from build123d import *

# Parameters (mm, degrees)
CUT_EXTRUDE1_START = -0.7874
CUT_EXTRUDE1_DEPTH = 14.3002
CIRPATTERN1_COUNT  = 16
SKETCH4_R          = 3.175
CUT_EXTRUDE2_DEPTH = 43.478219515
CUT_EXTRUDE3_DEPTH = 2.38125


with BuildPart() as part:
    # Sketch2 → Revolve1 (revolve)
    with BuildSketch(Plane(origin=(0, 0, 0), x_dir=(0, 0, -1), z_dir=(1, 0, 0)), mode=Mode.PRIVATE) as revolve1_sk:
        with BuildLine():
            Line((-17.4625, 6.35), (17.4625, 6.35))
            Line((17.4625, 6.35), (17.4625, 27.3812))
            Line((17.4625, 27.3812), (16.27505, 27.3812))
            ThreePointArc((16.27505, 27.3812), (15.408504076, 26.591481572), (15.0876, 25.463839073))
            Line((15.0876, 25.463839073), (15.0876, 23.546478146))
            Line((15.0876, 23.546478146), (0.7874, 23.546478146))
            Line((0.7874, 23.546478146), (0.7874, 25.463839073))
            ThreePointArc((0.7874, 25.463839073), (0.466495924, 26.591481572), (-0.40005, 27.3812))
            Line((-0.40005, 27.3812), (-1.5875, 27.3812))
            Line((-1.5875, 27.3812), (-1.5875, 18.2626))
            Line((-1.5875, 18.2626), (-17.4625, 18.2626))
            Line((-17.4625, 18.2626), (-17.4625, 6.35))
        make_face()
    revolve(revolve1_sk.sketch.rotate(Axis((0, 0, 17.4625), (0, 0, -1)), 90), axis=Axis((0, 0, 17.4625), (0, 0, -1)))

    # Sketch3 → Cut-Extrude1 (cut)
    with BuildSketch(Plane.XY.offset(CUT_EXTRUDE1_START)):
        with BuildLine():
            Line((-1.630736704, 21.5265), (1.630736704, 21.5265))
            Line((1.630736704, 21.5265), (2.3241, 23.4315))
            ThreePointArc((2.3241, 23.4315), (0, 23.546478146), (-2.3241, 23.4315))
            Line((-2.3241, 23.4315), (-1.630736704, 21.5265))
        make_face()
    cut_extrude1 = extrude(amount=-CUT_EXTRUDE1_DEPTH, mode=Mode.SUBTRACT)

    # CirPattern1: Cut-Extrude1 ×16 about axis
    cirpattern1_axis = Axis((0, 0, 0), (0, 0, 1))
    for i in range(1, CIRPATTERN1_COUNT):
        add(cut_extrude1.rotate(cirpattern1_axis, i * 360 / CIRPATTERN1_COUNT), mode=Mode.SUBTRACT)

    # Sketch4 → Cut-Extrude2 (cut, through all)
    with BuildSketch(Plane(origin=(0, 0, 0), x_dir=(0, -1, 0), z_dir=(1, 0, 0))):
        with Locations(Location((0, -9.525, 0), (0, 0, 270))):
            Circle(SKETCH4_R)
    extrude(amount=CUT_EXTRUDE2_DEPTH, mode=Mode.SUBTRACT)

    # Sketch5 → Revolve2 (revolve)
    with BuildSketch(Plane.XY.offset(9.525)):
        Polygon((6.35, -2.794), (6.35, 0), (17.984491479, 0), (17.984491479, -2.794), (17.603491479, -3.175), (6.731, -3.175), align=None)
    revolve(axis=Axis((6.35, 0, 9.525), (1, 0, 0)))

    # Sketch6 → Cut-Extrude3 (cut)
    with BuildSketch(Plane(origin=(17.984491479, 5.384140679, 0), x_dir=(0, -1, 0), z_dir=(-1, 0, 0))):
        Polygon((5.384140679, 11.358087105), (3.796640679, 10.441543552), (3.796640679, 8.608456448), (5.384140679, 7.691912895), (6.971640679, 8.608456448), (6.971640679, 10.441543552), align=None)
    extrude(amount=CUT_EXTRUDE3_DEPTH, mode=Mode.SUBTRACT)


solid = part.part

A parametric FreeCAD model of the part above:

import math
import FreeCAD as App
import Part
import Sketcher
Q = App.Units.Quantity

doc = App.newDocument("Part")
body = doc.addObject("PartDesign::Body", "Body")

# Sketch on YZ plane
sketch1 = body.newObject("Sketcher::SketchObject", "Sketch")
sketch1.AttachmentSupport = (doc.getObject("YZ_Plane"), [""])
sketch1.MapMode = "FlatFace"
sketch1.addGeometry(Part.LineSegment(App.Vector(6.3, 17.5, 0), App.Vector(6.3, -17.5, 0)), False)
sketch1.addGeometry(Part.LineSegment(App.Vector(6.3, -17.5, 0), App.Vector(27.4, -17.5, 0)), False)
sketch1.addGeometry(Part.LineSegment(App.Vector(27.4, -17.5, 0), App.Vector(27.4, -16.3, 0)), False)
sketch1.addGeometry(Part.ArcOfCircle(Part.Circle(App.Vector(25.5, -17.2, 0), App.Vector(0, 0, 1), 2.1), math.radians(26), math.radians(90)), False)
sketch1.addGeometry(Part.LineSegment(App.Vector(25.5, -15.1, 0), App.Vector(23.5, -15.1, 0)), False)
sketch1.addGeometry(Part.LineSegment(App.Vector(23.5, -15.1, 0), App.Vector(23.5, -0.8, 0)), False)
sketch1.addGeometry(Part.LineSegment(App.Vector(23.5, -0.8, 0), App.Vector(25.5, -0.8, 0)), False)
sketch1.addGeometry(Part.ArcOfCircle(Part.Circle(App.Vector(25.5, 1.4, 0), App.Vector(0, 0, 1), 2.1), math.radians(-90), math.radians(-26)), False)
sketch1.addGeometry(Part.LineSegment(App.Vector(27.4, 0.4, 0), App.Vector(27.4, 1.6, 0)), False)
sketch1.addGeometry(Part.LineSegment(App.Vector(27.4, 1.6, 0), App.Vector(18.3, 1.6, 0)), False)
sketch1.addGeometry(Part.LineSegment(App.Vector(18.3, 1.6, 0), App.Vector(18.3, 17.5, 0)), False)
sketch1.addGeometry(Part.LineSegment(App.Vector(18.3, 17.5, 0), App.Vector(6.3, 17.5, 0)), False)
sketch1.addConstraint(Sketcher.Constraint("Coincident", 0, 2, 1, 1))
sketch1.addConstraint(Sketcher.Constraint("Coincident", 1, 2, 2, 1))
sketch1.addConstraint(Sketcher.Constraint("Coincident", 2, 2, 3, 1))
sketch1.addConstraint(Sketcher.Constraint("Tangent", 3, 2, 4, 1))
sketch1.addConstraint(Sketcher.Constraint("Coincident", 4, 2, 5, 1))
sketch1.addConstraint(Sketcher.Constraint("Coincident", 5, 2, 6, 1))
sketch1.addConstraint(Sketcher.Constraint("Tangent", 6, 2, 7, 1))
sketch1.addConstraint(Sketcher.Constraint("Coincident", 7, 2, 8, 1))
sketch1.addConstraint(Sketcher.Constraint("Coincident", 8, 2, 9, 1))
sketch1.addConstraint(Sketcher.Constraint("Coincident", 9, 2, 10, 1))
sketch1.addConstraint(Sketcher.Constraint("Coincident", 10, 2, 11, 1))
sketch1.addConstraint(Sketcher.Constraint("Coincident", 11, 2, 0, 1))
sketch1.addConstraint(Sketcher.Constraint("Vertical", 0))
sketch1.addConstraint(Sketcher.Constraint("Horizontal", 1))
sketch1.addConstraint(Sketcher.Constraint("Vertical", 2))
sketch1.addConstraint(Sketcher.Constraint("Horizontal", 4))
sketch1.addConstraint(Sketcher.Constraint("Vertical", 5))
sketch1.addConstraint(Sketcher.Constraint("Horizontal", 6))
sketch1.addConstraint(Sketcher.Constraint("Vertical", 8))
sketch1.addConstraint(Sketcher.Constraint("Horizontal", 9))
sketch1.addConstraint(Sketcher.Constraint("Vertical", 10))
sketch1.addConstraint(Sketcher.Constraint("Horizontal", 11))
sketch1.addConstraint(Sketcher.Constraint("Equal", 3, 7))
sketch1.addConstraint(Sketcher.Constraint("Vertical", 3, 3, 7, 3))
sketch1.addConstraint(Sketcher.Constraint("Vertical", 2, 2, 7, 2))
sketch1.addConstraint(Sketcher.Constraint("Equal", 2, 8))
sketch1.addConstraint(Sketcher.Constraint("DistanceX", 1, 1, 1, 2, Q("0.828 in")))
sketch1.addConstraint(Sketcher.Constraint("DistanceX", 9, 2, 9, 1, Q("0.359 in")))
sketch1.addConstraint(Sketcher.Constraint("DistanceY", 0, 2, 0, 1, Q("1.375 in")))
sketch1.addConstraint(Sketcher.Constraint("DistanceY", 5, 1, 5, 2, Q("0.563 in")))
sketch1.addConstraint(Sketcher.Constraint("DistanceY", 10, 1, 10, 2, Q("0.625 in")))
sketch1.addConstraint(Sketcher.Constraint("DistanceX", -1, 1, 0, 2, Q("0.25 in")))
sketch1.addConstraint(Sketcher.Constraint("DistanceY", 0, 2, -1, 1, Q("0.6875 in")))
sketch1.addConstraint(Sketcher.Constraint("Radius", 3, 2.141695))
sketch1.addConstraint(Sketcher.Constraint("DistanceX", 4, 2, 4, 1, 1.917361))
sketch1.addConstraint(Sketcher.Constraint("DistanceY", 2, 1, 2, 2, 1.18745))
revolution = body.newObject("PartDesign::Revolution", "Revolution")
revolution.Profile = sketch1
revolution.ReferenceAxis = (sketch1, ["V_Axis"])
revolution.Angle = 360

# Sketch on XY plane
sketch2 = body.newObject("Sketcher::SketchObject", "Sketch001")
sketch2.AttachmentSupport = (doc.getObject("XY_Plane"), [""])
sketch2.MapMode = "FlatFace"
sketch2.AttachmentOffset = App.Placement(App.Vector(0, 0, -0.031 * 25.4), App.Rotation())
sketch2.addGeometry(Part.LineSegment(App.Vector(-1.6, 21.5, 0), App.Vector(1.6, 21.5, 0)), False)
sketch2.addGeometry(Part.LineSegment(App.Vector(1.6, 21.5, 0), App.Vector(2.3, 23.4, 0)), False)
sketch2.addGeometry(Part.ArcOfCircle(Part.Circle(App.Vector(0, 0, 0), App.Vector(0, 0, 1), 23.5), math.radians(84.34), math.radians(95.66)), False)
sketch2.addGeometry(Part.LineSegment(App.Vector(-2.3, 23.4, 0), App.Vector(-1.6, 21.5, 0)), False)
sketch2.addConstraint(Sketcher.Constraint("Coincident", 0, 2, 1, 1))
sketch2.addConstraint(Sketcher.Constraint("Coincident", 1, 2, 2, 1))
sketch2.addConstraint(Sketcher.Constraint("Coincident", 2, 2, 3, 1))
sketch2.addConstraint(Sketcher.Constraint("Coincident", 3, 2, 0, 1))
sketch2.addConstraint(Sketcher.Constraint("Horizontal", 0))
sketch2.addConstraint(Sketcher.Constraint("Coincident", 2, 3, -1, 1))
sketch2.addConstraint(Sketcher.Constraint("Horizontal", 1, 2, 2, 2))
sketch2.addConstraint(Sketcher.Constraint("Equal", 1, 3))
sketch2.addConstraint(Sketcher.Constraint("Angle", 1, Q("70 deg")))
sketch2.addConstraint(Sketcher.Constraint("Radius", 2, 23.546478))
sketch2.addConstraint(Sketcher.Constraint("DistanceY", 0, 2, 1, 2, Q("0.075 in")))
sketch2.addConstraint(Sketcher.Constraint("DistanceX", 2, 2, 1, 2, Q("0.183 in")))
pocket1 = body.newObject("PartDesign::Pocket", "Pocket")
pocket1.Profile = sketch2
pocket1.Length = Q("0.563 in")
doc.recompute()

polarpattern = body.newObject("PartDesign::PolarPattern", "PolarPattern")
polarpattern.Originals = [pocket1]
polarpattern.Axis = (doc.getObject("Z_Axis"), [""])
polarpattern.Angle = 360
polarpattern.Occurrences = 16
body.Tip = polarpattern

# Sketch on YZ plane
sketch3 = body.newObject("Sketcher::SketchObject", "Sketch002")
sketch3.AttachmentSupport = (doc.getObject("YZ_Plane"), [""])
sketch3.MapMode = "FlatFace"
sketch3.addGeometry(Part.Circle(App.Vector(0, 9.5, 0), App.Vector(0, 0, 1), 3.2), False)
sketch3.addConstraint(Sketcher.Constraint("PointOnObject", 0, 3, -2))
sketch3.addConstraint(Sketcher.Constraint("Diameter", 0, Q("0.25 in")))
sketch3.addConstraint(Sketcher.Constraint("DistanceY", -1, 1, 0, 3, Q("0.375 in")))
pocket2 = body.newObject("PartDesign::Pocket", "Pocket001")
pocket2.Profile = sketch3
pocket2.Type = "ThroughAll"
pocket2.Reversed = True

# Sketch on XY plane
sketch4 = body.newObject("Sketcher::SketchObject", "Sketch003")
sketch4.AttachmentSupport = (doc.getObject("XY_Plane"), [""])
sketch4.MapMode = "FlatFace"
sketch4.AttachmentOffset = App.Placement(App.Vector(0, 0, 0.375 * 25.4), App.Rotation())
sketch4.addGeometry(Part.LineSegment(App.Vector(6.3, 0, 0), App.Vector(6.3, -2.8, 0)), False)
sketch4.addGeometry(Part.LineSegment(App.Vector(6.3, -2.8, 0), App.Vector(6.7, -3.2, 0)), False)
sketch4.addGeometry(Part.LineSegment(App.Vector(6.7, -3.2, 0), App.Vector(17.6, -3.2, 0)), False)
sketch4.addGeometry(Part.LineSegment(App.Vector(17.6, -3.2, 0), App.Vector(18, -2.8, 0)), False)
sketch4.addGeometry(Part.LineSegment(App.Vector(18, -2.8, 0), App.Vector(18, 0, 0)), False)
sketch4.addGeometry(Part.LineSegment(App.Vector(18, 0, 0), App.Vector(6.3, 0, 0)), False)
sketch4.addConstraint(Sketcher.Constraint("Coincident", 0, 2, 1, 1))
sketch4.addConstraint(Sketcher.Constraint("Coincident", 1, 2, 2, 1))
sketch4.addConstraint(Sketcher.Constraint("Coincident", 2, 2, 3, 1))
sketch4.addConstraint(Sketcher.Constraint("Coincident", 3, 2, 4, 1))
sketch4.addConstraint(Sketcher.Constraint("Coincident", 4, 2, 5, 1))
sketch4.addConstraint(Sketcher.Constraint("Coincident", 5, 2, 0, 1))
sketch4.addConstraint(Sketcher.Constraint("Vertical", 0))
sketch4.addConstraint(Sketcher.Constraint("Horizontal", 2))
sketch4.addConstraint(Sketcher.Constraint("Vertical", 4))
sketch4.addConstraint(Sketcher.Constraint("Horizontal", 5))
sketch4.addConstraint(Sketcher.Constraint("PointOnObject", 4, 2, -1))
sketch4.addConstraint(Sketcher.Constraint("Perpendicular", 1, 3))
sketch4.addConstraint(Sketcher.Constraint("Horizontal", 0, 2, 3, 2))
sketch4.addConstraint(Sketcher.Constraint("Equal", 1, 3))
sketch4.addConstraint(Sketcher.Constraint("DistanceY", 0, 2, 0, 1, Q("0.11 in")))
sketch4.addConstraint(Sketcher.Constraint("DistanceX", -1, 1, 0, 2, Q("0.25 in")))
sketch4.addConstraint(Sketcher.Constraint("DistanceX", -1, 1, 1, 2, Q("0.265 in")))
sketch4.addConstraint(Sketcher.Constraint("DistanceX", 2, 1, 2, 2, 10.872491))
revolution2 = body.newObject("PartDesign::Revolution", "Revolution001")
revolution2.Profile = sketch4
revolution2.ReferenceAxis = (sketch4, ["H_Axis"])
revolution2.Angle = 360

# Sketch on YZ plane
sketch5 = body.newObject("Sketcher::SketchObject", "Sketch004")
sketch5.AttachmentSupport = (doc.getObject("YZ_Plane"), [""])
sketch5.MapMode = "FlatFace"
sketch5.AttachmentOffset = App.Placement(App.Vector(0, 0, 17.984491), App.Rotation())
sketch5.addGeometry(Part.LineSegment(App.Vector(0, 11.4, 0), App.Vector(1.6, 10.4, 0)), False)
sketch5.addGeometry(Part.LineSegment(App.Vector(1.6, 10.4, 0), App.Vector(1.6, 8.6, 0)), False)
sketch5.addGeometry(Part.LineSegment(App.Vector(1.6, 8.6, 0), App.Vector(0, 7.7, 0)), False)
sketch5.addGeometry(Part.LineSegment(App.Vector(0, 7.7, 0), App.Vector(-1.6, 8.6, 0)), False)
sketch5.addGeometry(Part.LineSegment(App.Vector(-1.6, 8.6, 0), App.Vector(-1.6, 10.4, 0)), False)
sketch5.addGeometry(Part.LineSegment(App.Vector(-1.6, 10.4, 0), App.Vector(0, 11.4, 0)), False)
sketch5.addConstraint(Sketcher.Constraint("Coincident", 0, 2, 1, 1))
sketch5.addConstraint(Sketcher.Constraint("Coincident", 1, 2, 2, 1))
sketch5.addConstraint(Sketcher.Constraint("Coincident", 2, 2, 3, 1))
sketch5.addConstraint(Sketcher.Constraint("Coincident", 3, 2, 4, 1))
sketch5.addConstraint(Sketcher.Constraint("Coincident", 4, 2, 5, 1))
sketch5.addConstraint(Sketcher.Constraint("Coincident", 5, 2, 0, 1))
sketch5.addConstraint(Sketcher.Constraint("Vertical", 1))
sketch5.addConstraint(Sketcher.Constraint("Vertical", 4))
sketch5.addConstraint(Sketcher.Constraint("Symmetric", 1, 2, 3, 2, -2))
sketch5.addConstraint(Sketcher.Constraint("PointOnObject", 2, 2, -2))
sketch5.addConstraint(Sketcher.Constraint("PointOnObject", 5, 2, -2))
sketch5.addConstraint(Sketcher.Constraint("Parallel", 0, 3))
sketch5.addConstraint(Sketcher.Constraint("Parallel", 2, 5))
sketch5.addConstraint(Sketcher.Constraint("Angle", 0, Q("-30 deg")))
sketch5.addConstraint(Sketcher.Constraint("DistanceX", -1, 1, 0, 2, Q("0.0625 in")))
sketch5.addConstraint(Sketcher.Constraint("DistanceY", 1, 2, 1, 1, 1.833087))
sketch5.addConstraint(Sketcher.Constraint("DistanceY", -1, 1, 0, 2, 10.441544))
pocket3 = body.newObject("PartDesign::Pocket", "Pocket002")
pocket3.Profile = sketch5
pocket3.Length = Q("0.09375 in")

doc.recompute()
